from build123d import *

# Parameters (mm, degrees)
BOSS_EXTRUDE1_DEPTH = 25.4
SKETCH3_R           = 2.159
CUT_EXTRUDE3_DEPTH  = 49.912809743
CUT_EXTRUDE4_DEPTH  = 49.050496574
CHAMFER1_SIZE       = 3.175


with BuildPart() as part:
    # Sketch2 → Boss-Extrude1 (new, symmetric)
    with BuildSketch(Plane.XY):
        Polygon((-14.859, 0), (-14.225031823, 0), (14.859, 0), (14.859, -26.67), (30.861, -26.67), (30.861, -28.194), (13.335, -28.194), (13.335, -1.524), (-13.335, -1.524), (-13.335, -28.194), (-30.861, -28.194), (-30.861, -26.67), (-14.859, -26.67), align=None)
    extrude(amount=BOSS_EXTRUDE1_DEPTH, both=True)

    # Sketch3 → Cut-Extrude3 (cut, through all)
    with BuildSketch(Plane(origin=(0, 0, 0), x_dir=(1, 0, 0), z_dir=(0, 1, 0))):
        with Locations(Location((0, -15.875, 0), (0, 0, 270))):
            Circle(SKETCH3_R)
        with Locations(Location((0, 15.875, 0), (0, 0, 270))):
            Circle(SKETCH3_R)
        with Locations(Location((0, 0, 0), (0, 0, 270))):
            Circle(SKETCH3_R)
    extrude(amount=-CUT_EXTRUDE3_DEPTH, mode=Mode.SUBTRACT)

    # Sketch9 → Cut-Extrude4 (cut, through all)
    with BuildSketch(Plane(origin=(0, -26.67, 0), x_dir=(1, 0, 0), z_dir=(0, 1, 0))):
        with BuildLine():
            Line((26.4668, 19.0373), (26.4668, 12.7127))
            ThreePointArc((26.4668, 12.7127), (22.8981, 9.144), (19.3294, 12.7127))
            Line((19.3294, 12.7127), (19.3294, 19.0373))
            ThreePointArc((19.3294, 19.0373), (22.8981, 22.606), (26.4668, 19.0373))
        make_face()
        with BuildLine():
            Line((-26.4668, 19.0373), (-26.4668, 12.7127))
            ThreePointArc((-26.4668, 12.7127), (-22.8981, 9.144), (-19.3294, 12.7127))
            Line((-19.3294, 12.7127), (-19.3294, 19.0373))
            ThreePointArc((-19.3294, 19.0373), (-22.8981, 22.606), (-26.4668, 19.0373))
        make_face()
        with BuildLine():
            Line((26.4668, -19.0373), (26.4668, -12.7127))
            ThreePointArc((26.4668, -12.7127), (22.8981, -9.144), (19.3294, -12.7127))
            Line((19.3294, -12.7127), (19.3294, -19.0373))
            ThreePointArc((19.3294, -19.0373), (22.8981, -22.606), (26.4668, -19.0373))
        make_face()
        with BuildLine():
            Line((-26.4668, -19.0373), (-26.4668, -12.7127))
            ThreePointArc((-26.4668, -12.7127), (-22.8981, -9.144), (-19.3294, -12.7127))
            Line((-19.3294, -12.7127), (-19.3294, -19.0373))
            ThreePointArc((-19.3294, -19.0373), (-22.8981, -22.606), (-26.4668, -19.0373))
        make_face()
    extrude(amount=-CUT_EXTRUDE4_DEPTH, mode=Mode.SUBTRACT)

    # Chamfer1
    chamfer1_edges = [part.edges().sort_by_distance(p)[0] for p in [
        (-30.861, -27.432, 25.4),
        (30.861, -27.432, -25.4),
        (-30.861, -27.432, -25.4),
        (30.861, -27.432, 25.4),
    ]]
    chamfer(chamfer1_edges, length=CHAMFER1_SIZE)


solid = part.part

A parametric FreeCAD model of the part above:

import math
import FreeCAD as App
import Part
import Sketcher
from FreeCAD import Vector
Q = App.Units.Quantity


def edges_at(feature, points):
    """Names of the edges that pass closest to the given points."""
    edges = feature.Shape.Edges
    near = lambda p: min(range(len(edges)), key=lambda i: edges[i].distToShape(Part.Vertex(*p))[0])
    return sorted({f"Edge{near(p) + 1}" for p in points})

doc = App.newDocument("Part")
body = doc.addObject("PartDesign::Body", "Body")

# Sketch on XY plane
sketch1 = body.newObject("Sketcher::SketchObject", "Sketch")
sketch1.AttachmentSupport = (doc.getObject("XY_Plane"), [""])
sketch1.MapMode = "FlatFace"
sketch1.addGeometry(Part.LineSegment(Vector(14.9, 0, 0), Vector(-14.9, 0, 0)), False)
sketch1.addGeometry(Part.LineSegment(Vector(-14.9, 0, 0), Vector(-14.9, -26.7, 0)), False)
sketch1.addGeometry(Part.LineSegment(Vector(-14.9, -26.7, 0), Vector(-30.9, -26.7, 0)), False)
sketch1.addGeometry(Part.LineSegment(Vector(-30.9, -26.7, 0), Vector(-30.9, -28.2, 0)), False)
sketch1.addGeometry(Part.LineSegment(Vector(-30.9, -28.2, 0), Vector(-13.3, -28.2, 0)), False)
sketch1.addGeometry(Part.LineSegment(Vector(-13.3, -28.2, 0), Vector(-13.3, -1.5, 0)), False)
sketch1.addGeometry(Part.LineSegment(Vector(-13.3, -1.5, 0), Vector(13.3, -1.5, 0)), False)
sketch1.addGeometry(Part.LineSegment(Vector(13.3, -1.5, 0), Vector(13.3, -28.2, 0)), False)
sketch1.addGeometry(Part.LineSegment(Vector(13.3, -28.2, 0), Vector(30.9, -28.2, 0)), False)
sketch1.addGeometry(Part.LineSegment(Vector(30.9, -28.2, 0), Vector(30.9, -26.7, 0)), False)
sketch1.addGeometry(Part.LineSegment(Vector(30.9, -26.7, 0), Vector(14.9, -26.7, 0)), False)
sketch1.addGeometry(Part.LineSegment(Vector(14.9, -26.7, 0), Vector(14.9, 0, 0)), False)
sketch1.addConstraint(Sketcher.Constraint("Coincident", 0, 2, 1, 1))
sketch1.addConstraint(Sketcher.Constraint("Coincident", 1, 2, 2, 1))
sketch1.addConstraint(Sketcher.Constraint("Coincident", 2, 2, 3, 1))
sketch1.addConstraint(Sketcher.Constraint("Coincident", 3, 2, 4, 1))
sketch1.addConstraint(Sketcher.Constraint("Coincident", 4, 2, 5, 1))
sketch1.addConstraint(Sketcher.Constraint("Coincident", 5, 2, 6, 1))
sketch1.addConstraint(Sketcher.Constraint("Coincident", 6, 2, 7, 1))
sketch1.addConstraint(Sketcher.Constraint("Coincident", 7, 2, 8, 1))
sketch1.addConstraint(Sketcher.Constraint("Coincident", 8, 2, 9, 1))
sketch1.addConstraint(Sketcher.Constraint("Coincident", 9, 2, 10, 1))
sketch1.addConstraint(Sketcher.Constraint("Coincident", 10, 2, 11, 1))
sketch1.addConstraint(Sketcher.Constraint("Coincident", 11, 2, 0, 1))
sketch1.addConstraint(Sketcher.Constraint("Horizontal", 0))
sketch1.addConstraint(Sketcher.Constraint("Vertical", 1))
sketch1.addConstraint(Sketcher.Constraint("Horizontal", 2))
sketch1.addConstraint(Sketcher.Constraint("Vertical", 3))
sketch1.addConstraint(Sketcher.Constraint("Horizontal", 4))
sketch1.addConstraint(Sketcher.Constraint("Vertical", 5))
sketch1.addConstraint(Sketcher.Constraint("Horizontal", 6))
sketch1.addConstraint(Sketcher.Constraint("Vertical", 7))
sketch1.addConstraint(Sketcher.Constraint("Horizontal", 8))
sketch1.addConstraint(Sketcher.Constraint("Vertical", 9))
sketch1.addConstraint(Sketcher.Constraint("Horizontal", 10))
sketch1.addConstraint(Sketcher.Constraint("Vertical", 11))
sketch1.addConstraint(Sketcher.Constraint("Symmetric", 0, 2, 11, 2, -1, 1))
sketch1.addConstraint(Sketcher.Constraint("Symmetric", 4, 2, 7, 2, -2))
sketch1.addConstraint(Sketcher.Constraint("Symmetric", 2, 2, 9, 2, -2))
sketch1.addConstraint(Sketcher.Constraint("Equal", 6, 1))
sketch1.addConstraint(Sketcher.Constraint("Equal", 1, 5))
sketch1.addConstraint(Sketcher.Constraint("DistanceX", 0, 2, 0, 1, Q("1.17 in")))
sketch1.addConstraint(Sketcher.Constraint("DistanceX", 2, 2, 2, 1, Q("0.63 in")))
sketch1.addConstraint(Sketcher.Constraint("DistanceX", 4, 1, 4, 2, Q("0.69 in")))
sketch1.addConstraint(Sketcher.Constraint("DistanceY", 3, 2, 3, 1, Q("0.06 in")))
pad1 = body.newObject("PartDesign::Pad", "Pad")
pad1.Profile = sketch1
pad1.Length = Q("2 in")
pad1.Midplane = True

# Sketch on XZ plane
sketch2 = body.newObject("Sketcher::SketchObject", "Sketch001")
sketch2.AttachmentSupport = (doc.getObject("XZ_Plane"), [""])
sketch2.MapMode = "FlatFace"
sketch2.addGeometry(Part.Circle(Vector(0, 15.9, 0), Vector(0, 0, 1), 2.2), False)
sketch2.addGeometry(Part.Circle(Vector(0, -15.9, 0), Vector(0, 0, 1), 2.2), False)
sketch2.addGeometry(Part.Circle(Vector(0, 0, 0), Vector(0, 0, 1), 2.2), False)
sketch2.addConstraint(Sketcher.Constraint("Coincident", 2, 3, -1, 1))
sketch2.addConstraint(Sketcher.Constraint("Equal", 0, 1))
sketch2.addConstraint(Sketcher.Constraint("Equal", 1, 2))
sketch2.addConstraint(Sketcher.Constraint("Symmetric", 0, 3, 1, 3, -1, 1))
sketch2.addConstraint(Sketcher.Constraint("PointOnObject", 0, 3, -2))
sketch2.addConstraint(Sketcher.Constraint("Diameter", 0, Q("0.17 in")))
sketch2.addConstraint(Sketcher.Constraint("DistanceY", 1, 3, 0, 3, Q("1.25 in")))
pocket1 = body.newObject("PartDesign::Pocket", "Pocket")
pocket1.Profile = sketch2
pocket1.Type = "ThroughAll"
pocket1.Reversed = True

# Sketch on XZ plane
sketch3 = body.newObject("Sketcher::SketchObject", "Sketch002")
sketch3.AttachmentSupport = (doc.getObject("XZ_Plane"), [""])
sketch3.MapMode = "FlatFace"
sketch3.AttachmentOffset = App.Placement(Vector(0, 0, 1.05 * 25.4), App.Rotation())
sketch3.addGeometry(Part.LineSegment(Vector(26.5, -12.7, 0), Vector(26.5, -19, 0)), False)
sketch3.addGeometry(Part.ArcOfCircle(Part.Circle(Vector(22.9, -19, 0), Vector(0, 0, 1), 3.6), math.radians(180), math.radians(360)), False)
sketch3.addGeometry(Part.LineSegment(Vector(19.3, -19, 0), Vector(19.3, -12.7, 0)), False)
sketch3.addGeometry(Part.ArcOfCircle(Part.Circle(Vector(22.9, -12.7, 0), Vector(0, 0, 1), 3.6), math.radians(0), math.radians(180)), False)
sketch3.addGeometry(Part.LineSegment(Vector(-26.5, -19, 0), Vector(-26.5, -12.7, 0)), False)
sketch3.addGeometry(Part.ArcOfCircle(Part.Circle(Vector(-22.9, -12.7, 0), Vector(0, 0, 1), 3.6), math.radians(0), math.radians(180)), False)
sketch3.addGeometry(Part.LineSegment(Vector(-19.3, -12.7, 0), Vector(-19.3, -19, 0)), False)
sketch3.addGeometry(Part.ArcOfCircle(Part.Circle(Vector(-22.9, -19, 0), Vector(0, 0, 1), 3.6), math.radians(180), math.radians(360)), False)
sketch3.addGeometry(Part.LineSegment(Vector(26.5, 19, 0), Vector(26.5, 12.7, 0)), False)
sketch3.addGeometry(Part.ArcOfCircle(Part.Circle(Vector(22.9, 12.7, 0), Vector(0, 0, 1), 3.6), math.radians(180), math.radians(360)), False)
sketch3.addGeometry(Part.LineSegment(Vector(19.3, 12.7, 0), Vector(19.3, 19, 0)), False)
sketch3.addGeometry(Part.ArcOfCircle(Part.Circle(Vector(22.9, 19, 0), Vector(0, 0, 1), 3.6), math.radians(0), math.radians(180)), False)
sketch3.addGeometry(Part.LineSegment(Vector(-26.5, 12.7, 0), Vector(-26.5, 19, 0)), False)
sketch3.addGeometry(Part.ArcOfCircle(Part.Circle(Vector(-22.9, 19, 0), Vector(0, 0, 1), 3.6), math.radians(0), math.radians(180)), False)
sketch3.addGeometry(Part.LineSegment(Vector(-19.3, 19, 0), Vector(-19.3, 12.7, 0)), False)
sketch3.addGeometry(Part.ArcOfCircle(Part.Circle(Vector(-22.9, 12.7, 0), Vector(0, 0, 1), 3.6), math.radians(180), math.radians(360)), False)
sketch3.addConstraint(Sketcher.Constraint("Tangent", 0, 2, 1, 2))
sketch3.addConstraint(Sketcher.Constraint("Tangent", 1, 1, 2, 1))
sketch3.addConstraint(Sketcher.Constraint("Tangent", 2, 2, 3, 2))
sketch3.addConstraint(Sketcher.Constraint("Tangent", 3, 1, 0, 1))
sketch3.addConstraint(Sketcher.Constraint("Tangent", 4, 2, 5, 2))
sketch3.addConstraint(Sketcher.Constraint("Tangent", 5, 1, 6, 1))
sketch3.addConstraint(Sketcher.Constraint("Tangent", 6, 2, 7, 2))
sketch3.addConstraint(Sketcher.Constraint("Tangent", 7, 1, 4, 1))
sketch3.addConstraint(Sketcher.Constraint("Tangent", 8, 2, 9, 2))
sketch3.addConstraint(Sketcher.Constraint("Tangent", 9, 1, 10, 1))
sketch3.addConstraint(Sketcher.Constraint("Tangent", 10, 2, 11, 2))
sketch3.addConstraint(Sketcher.Constraint("Tangent", 11, 1, 8, 1))
sketch3.addConstraint(Sketcher.Constraint("Tangent", 12, 2, 13, 2))
sketch3.addConstraint(Sketcher.Constraint("Tangent", 13, 1, 14, 1))
sketch3.addConstraint(Sketcher.Constraint("Tangent", 14, 2, 15, 2))
sketch3.addConstraint(Sketcher.Constraint("Tangent", 15, 1, 12, 1))
sketch3.addConstraint(Sketcher.Constraint("Vertical", 0))
sketch3.addConstraint(Sketcher.Constraint("Vertical", 2))
sketch3.addConstraint(Sketcher.Constraint("Vertical", 4))
sketch3.addConstraint(Sketcher.Constraint("Vertical", 6))
sketch3.addConstraint(Sketcher.Constraint("Vertical", 8))
sketch3.addConstraint(Sketcher.Constraint("Vertical", 10))
sketch3.addConstraint(Sketcher.Constraint("Vertical", 12))
sketch3.addConstraint(Sketcher.Constraint("Vertical", 14))
sketch3.addConstraint(Sketcher.Constraint("Equal", 3, 5))
sketch3.addConstraint(Sketcher.Constraint("Equal", 7, 9))
sketch3.addConstraint(Sketcher.Constraint("Equal", 11, 13))
sketch3.addConstraint(Sketcher.Constraint("Symmetric", 5, 3, 9, 3, -1, 1))
sketch3.addConstraint(Sketcher.Constraint("Symmetric", 1, 3, 13, 3, -1, 1))
sketch3.addConstraint(Sketcher.Constraint("Symmetric", 3, 3, 5, 3, -2))
sketch3.addConstraint(Sketcher.Constraint("Horizontal", 1, 3, 7, 3))
sketch3.addConstraint(Sketcher.Constraint("Horizontal", 11, 3, 13, 3))
sketch3.addConstraint(Sketcher.Constraint("Horizontal", 9, 3, 15, 3))
sketch3.addConstraint(Sketcher.Constraint("Radius", 1, Q("0.1405 in")))
sketch3.addConstraint(Sketcher.Constraint("DistanceY", 0, 2, 0, 1, Q("0.249 in")))
sketch3.addConstraint(Sketcher.Constraint("DistanceY", 1, 3, 9, 3, Q("1.25 in")))
sketch3.addConstraint(Sketcher.Constraint("DistanceX", -1, 1, 0, 2, Q("1.042 in")))
pocket2 = body.newObject("PartDesign::Pocket", "Pocket001")
pocket2.Profile = sketch3
pocket2.Type = "ThroughAll"
pocket2.Reversed = True
doc.recompute()

chamfer = body.newObject("PartDesign::Chamfer", "Chamfer")
chamfer.Base = (pocket2, edges_at(pocket2, [
    (-30.861, -27.432, 25.4),
    (30.861, -27.432, -25.4),
    (-30.861, -27.432, -25.4),
    (30.861, -27.432, 25.4),
]))
chamfer.Size = Q("0.125 in")

doc.recompute()
